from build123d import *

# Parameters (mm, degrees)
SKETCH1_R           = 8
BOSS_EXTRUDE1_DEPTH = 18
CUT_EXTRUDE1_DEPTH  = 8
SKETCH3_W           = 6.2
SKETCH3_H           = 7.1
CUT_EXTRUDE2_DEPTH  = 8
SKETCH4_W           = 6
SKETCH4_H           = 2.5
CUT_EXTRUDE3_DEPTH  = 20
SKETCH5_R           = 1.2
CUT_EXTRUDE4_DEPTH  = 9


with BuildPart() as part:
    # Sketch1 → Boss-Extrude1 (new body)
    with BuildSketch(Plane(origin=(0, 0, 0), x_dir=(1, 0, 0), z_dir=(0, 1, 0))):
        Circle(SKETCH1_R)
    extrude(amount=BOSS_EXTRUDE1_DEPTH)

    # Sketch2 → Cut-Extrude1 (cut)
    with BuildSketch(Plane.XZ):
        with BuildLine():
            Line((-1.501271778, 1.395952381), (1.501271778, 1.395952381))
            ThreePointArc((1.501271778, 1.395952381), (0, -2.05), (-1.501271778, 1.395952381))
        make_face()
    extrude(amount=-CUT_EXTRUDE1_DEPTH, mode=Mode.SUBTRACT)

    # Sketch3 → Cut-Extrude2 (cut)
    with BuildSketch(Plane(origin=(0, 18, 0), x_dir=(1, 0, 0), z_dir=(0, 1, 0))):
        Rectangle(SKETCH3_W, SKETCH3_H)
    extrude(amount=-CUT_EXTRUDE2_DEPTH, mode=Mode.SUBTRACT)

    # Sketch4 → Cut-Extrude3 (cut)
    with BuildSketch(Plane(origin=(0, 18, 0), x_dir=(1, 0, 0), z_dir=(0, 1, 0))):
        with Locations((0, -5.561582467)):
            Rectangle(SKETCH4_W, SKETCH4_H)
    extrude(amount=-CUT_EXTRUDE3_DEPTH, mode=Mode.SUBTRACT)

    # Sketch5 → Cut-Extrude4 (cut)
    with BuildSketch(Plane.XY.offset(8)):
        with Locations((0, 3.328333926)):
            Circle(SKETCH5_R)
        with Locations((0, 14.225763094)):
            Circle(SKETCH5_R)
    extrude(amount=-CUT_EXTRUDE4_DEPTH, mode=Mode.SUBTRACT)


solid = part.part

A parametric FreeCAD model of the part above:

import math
import FreeCAD as App
import Part
import Sketcher


def add_polygon(sketch, points):
    """Adds a closed chain of lines whose ends are joined by coincident constraints."""
    first, n = sketch.GeometryCount, len(points)
    for a, b in zip(points, points[1:] + points[:1]):
        sketch.addGeometry(Part.LineSegment(App.Vector(*a, 0), App.Vector(*b, 0)), False)
    for i in range(n):
        sketch.addConstraint(Sketcher.Constraint("Coincident", first + i, 2, first + (i + 1) % n, 1))

doc = App.newDocument("Part")
body = doc.addObject("PartDesign::Body", "Body")

sketch1 = body.newObject("Sketcher::SketchObject", "Sketch")
sketch1.AttachmentSupport = (doc.getObject("XZ_Plane"), [""])
sketch1.MapMode = "FlatFace"
sketch1.addGeometry(Part.Circle(App.Vector(0, 0, 0), App.Vector(0, 0, 1), 8), False)
sketch1.addConstraint([
    Sketcher.Constraint("Coincident", 0, 3, -1, 1),
    Sketcher.Constraint("Diameter", 0, 16.0),
])
pad1 = body.newObject("PartDesign::Pad", "Pad")
pad1.Profile = sketch1
pad1.Length = 18
pad1.Reversed = True

sketch2 = body.newObject("Sketcher::SketchObject", "Sketch001")
sketch2.AttachmentSupport = (doc.getObject("XZ_Plane"), [""])
sketch2.MapMode = "FlatFace"
sketch2.addGeometry([
    Part.LineSegment(App.Vector(1.5, 1.4, 0), App.Vector(-1.5, 1.4, 0)),
    Part.ArcOfCircle(Part.Circle(App.Vector(0, 0, 0), App.Vector(0, 0, 1), 2), math.radians(137), math.radians(403)),
], False)
sketch2.addConstraint([
    Sketcher.Constraint("Coincident", 0, 1, 1, 2),
    Sketcher.Constraint("Coincident", 1, 1, 0, 2),
    Sketcher.Constraint("Horizontal", 0),
    Sketcher.Constraint("Coincident", 1, 3, -1, 1),
    Sketcher.Constraint("Radius", 1, 2.05),
    Sketcher.Constraint("DistanceX", 0, 2, 0, 1, 3.002544),
])
pocket1 = body.newObject("PartDesign::Pocket", "Pocket")
pocket1.Profile = sketch2
pocket1.Length = 8

sketch3 = body.newObject("Sketcher::SketchObject", "Sketch002")
sketch3.AttachmentSupport = (doc.getObject("XZ_Plane"), [""])
sketch3.MapMode = "FlatFace"
sketch3.AttachmentOffset = App.Placement(App.Vector(0, 0, -18), App.Rotation())
add_polygon(sketch3, [(-3, -4), (-3, 4), (3, 4), (3, -4)])
sketch3.addConstraint([
    Sketcher.Constraint("Vertical", 0),
    Sketcher.Constraint("Horizontal", 1),
    Sketcher.Constraint("Vertical", 2),
    Sketcher.Constraint("Horizontal", 3),
    Sketcher.Constraint("Symmetric", 0, 2, 2, 2, -1, 1),
    Sketcher.Constraint("DistanceX", 1, 1, 1, 2, 6.2),
    Sketcher.Constraint("DistanceY", 0, 1, 0, 2, 7.1),
])
pocket2 = body.newObject("PartDesign::Pocket", "Pocket001")
pocket2.Profile = sketch3
pocket2.Length = 8
pocket2.Reversed = True

sketch4 = body.newObject("Sketcher::SketchObject", "Sketch003")
sketch4.AttachmentSupport = (doc.getObject("XZ_Plane"), [""])
sketch4.MapMode = "FlatFace"
sketch4.AttachmentOffset = App.Placement(App.Vector(0, 0, -18), App.Rotation())
add_polygon(sketch4, [(-3, 4.3), (-3, 6.8), (3, 6.8), (3, 4.3)])
sketch4.addConstraint([
    Sketcher.Constraint("Vertical", 0),
    Sketcher.Constraint("Horizontal", 1),
    Sketcher.Constraint("Vertical", 2),
    Sketcher.Constraint("Horizontal", 3),
    Sketcher.Constraint("DistanceX", 1, 1, 1, 2, 6.0),
    Sketcher.Constraint("DistanceY", 0, 1, 0, 2, 2.5),
    Sketcher.Constraint("DistanceX", 0, 2, -1, 1, 3.0),
    Sketcher.Constraint("DistanceY", -1, 1, 0, 2, 6.811582),
])
pocket3 = body.newObject("PartDesign::Pocket", "Pocket002")
pocket3.Profile = sketch4
pocket3.Length = 20
pocket3.Reversed = True

sketch5 = body.newObject("Sketcher::SketchObject", "Sketch004")
sketch5.AttachmentSupport = (doc.getObject("XY_Plane"), [""])
sketch5.MapMode = "FlatFace"
sketch5.AttachmentOffset = App.Placement(App.Vector(0, 0, 8), App.Rotation())
sketch5.addGeometry([
    Part.Circle(App.Vector(0, 3.3, 0), App.Vector(0, 0, 1), 1.2),
    Part.Circle(App.Vector(0, 14.2, 0), App.Vector(0, 0, 1), 1.2),
], False)
sketch5.addConstraint([
    Sketcher.Constraint("Equal", 0, 1),
    Sketcher.Constraint("PointOnObject", 0, 3, -2),
    Sketcher.Constraint("PointOnObject", 1, 3, -2),
    Sketcher.Constraint("Diameter", 0, 2.4),
    Sketcher.Constraint("DistanceY", 0, 3, 1, 3, 10.897429),
    Sketcher.Constraint("DistanceY", -1, 1, 0, 3, 3.328334),
])
pocket4 = body.newObject("PartDesign::Pocket", "Pocket003")
pocket4.Profile = sketch5
pocket4.Length = 9

doc.recompute()
